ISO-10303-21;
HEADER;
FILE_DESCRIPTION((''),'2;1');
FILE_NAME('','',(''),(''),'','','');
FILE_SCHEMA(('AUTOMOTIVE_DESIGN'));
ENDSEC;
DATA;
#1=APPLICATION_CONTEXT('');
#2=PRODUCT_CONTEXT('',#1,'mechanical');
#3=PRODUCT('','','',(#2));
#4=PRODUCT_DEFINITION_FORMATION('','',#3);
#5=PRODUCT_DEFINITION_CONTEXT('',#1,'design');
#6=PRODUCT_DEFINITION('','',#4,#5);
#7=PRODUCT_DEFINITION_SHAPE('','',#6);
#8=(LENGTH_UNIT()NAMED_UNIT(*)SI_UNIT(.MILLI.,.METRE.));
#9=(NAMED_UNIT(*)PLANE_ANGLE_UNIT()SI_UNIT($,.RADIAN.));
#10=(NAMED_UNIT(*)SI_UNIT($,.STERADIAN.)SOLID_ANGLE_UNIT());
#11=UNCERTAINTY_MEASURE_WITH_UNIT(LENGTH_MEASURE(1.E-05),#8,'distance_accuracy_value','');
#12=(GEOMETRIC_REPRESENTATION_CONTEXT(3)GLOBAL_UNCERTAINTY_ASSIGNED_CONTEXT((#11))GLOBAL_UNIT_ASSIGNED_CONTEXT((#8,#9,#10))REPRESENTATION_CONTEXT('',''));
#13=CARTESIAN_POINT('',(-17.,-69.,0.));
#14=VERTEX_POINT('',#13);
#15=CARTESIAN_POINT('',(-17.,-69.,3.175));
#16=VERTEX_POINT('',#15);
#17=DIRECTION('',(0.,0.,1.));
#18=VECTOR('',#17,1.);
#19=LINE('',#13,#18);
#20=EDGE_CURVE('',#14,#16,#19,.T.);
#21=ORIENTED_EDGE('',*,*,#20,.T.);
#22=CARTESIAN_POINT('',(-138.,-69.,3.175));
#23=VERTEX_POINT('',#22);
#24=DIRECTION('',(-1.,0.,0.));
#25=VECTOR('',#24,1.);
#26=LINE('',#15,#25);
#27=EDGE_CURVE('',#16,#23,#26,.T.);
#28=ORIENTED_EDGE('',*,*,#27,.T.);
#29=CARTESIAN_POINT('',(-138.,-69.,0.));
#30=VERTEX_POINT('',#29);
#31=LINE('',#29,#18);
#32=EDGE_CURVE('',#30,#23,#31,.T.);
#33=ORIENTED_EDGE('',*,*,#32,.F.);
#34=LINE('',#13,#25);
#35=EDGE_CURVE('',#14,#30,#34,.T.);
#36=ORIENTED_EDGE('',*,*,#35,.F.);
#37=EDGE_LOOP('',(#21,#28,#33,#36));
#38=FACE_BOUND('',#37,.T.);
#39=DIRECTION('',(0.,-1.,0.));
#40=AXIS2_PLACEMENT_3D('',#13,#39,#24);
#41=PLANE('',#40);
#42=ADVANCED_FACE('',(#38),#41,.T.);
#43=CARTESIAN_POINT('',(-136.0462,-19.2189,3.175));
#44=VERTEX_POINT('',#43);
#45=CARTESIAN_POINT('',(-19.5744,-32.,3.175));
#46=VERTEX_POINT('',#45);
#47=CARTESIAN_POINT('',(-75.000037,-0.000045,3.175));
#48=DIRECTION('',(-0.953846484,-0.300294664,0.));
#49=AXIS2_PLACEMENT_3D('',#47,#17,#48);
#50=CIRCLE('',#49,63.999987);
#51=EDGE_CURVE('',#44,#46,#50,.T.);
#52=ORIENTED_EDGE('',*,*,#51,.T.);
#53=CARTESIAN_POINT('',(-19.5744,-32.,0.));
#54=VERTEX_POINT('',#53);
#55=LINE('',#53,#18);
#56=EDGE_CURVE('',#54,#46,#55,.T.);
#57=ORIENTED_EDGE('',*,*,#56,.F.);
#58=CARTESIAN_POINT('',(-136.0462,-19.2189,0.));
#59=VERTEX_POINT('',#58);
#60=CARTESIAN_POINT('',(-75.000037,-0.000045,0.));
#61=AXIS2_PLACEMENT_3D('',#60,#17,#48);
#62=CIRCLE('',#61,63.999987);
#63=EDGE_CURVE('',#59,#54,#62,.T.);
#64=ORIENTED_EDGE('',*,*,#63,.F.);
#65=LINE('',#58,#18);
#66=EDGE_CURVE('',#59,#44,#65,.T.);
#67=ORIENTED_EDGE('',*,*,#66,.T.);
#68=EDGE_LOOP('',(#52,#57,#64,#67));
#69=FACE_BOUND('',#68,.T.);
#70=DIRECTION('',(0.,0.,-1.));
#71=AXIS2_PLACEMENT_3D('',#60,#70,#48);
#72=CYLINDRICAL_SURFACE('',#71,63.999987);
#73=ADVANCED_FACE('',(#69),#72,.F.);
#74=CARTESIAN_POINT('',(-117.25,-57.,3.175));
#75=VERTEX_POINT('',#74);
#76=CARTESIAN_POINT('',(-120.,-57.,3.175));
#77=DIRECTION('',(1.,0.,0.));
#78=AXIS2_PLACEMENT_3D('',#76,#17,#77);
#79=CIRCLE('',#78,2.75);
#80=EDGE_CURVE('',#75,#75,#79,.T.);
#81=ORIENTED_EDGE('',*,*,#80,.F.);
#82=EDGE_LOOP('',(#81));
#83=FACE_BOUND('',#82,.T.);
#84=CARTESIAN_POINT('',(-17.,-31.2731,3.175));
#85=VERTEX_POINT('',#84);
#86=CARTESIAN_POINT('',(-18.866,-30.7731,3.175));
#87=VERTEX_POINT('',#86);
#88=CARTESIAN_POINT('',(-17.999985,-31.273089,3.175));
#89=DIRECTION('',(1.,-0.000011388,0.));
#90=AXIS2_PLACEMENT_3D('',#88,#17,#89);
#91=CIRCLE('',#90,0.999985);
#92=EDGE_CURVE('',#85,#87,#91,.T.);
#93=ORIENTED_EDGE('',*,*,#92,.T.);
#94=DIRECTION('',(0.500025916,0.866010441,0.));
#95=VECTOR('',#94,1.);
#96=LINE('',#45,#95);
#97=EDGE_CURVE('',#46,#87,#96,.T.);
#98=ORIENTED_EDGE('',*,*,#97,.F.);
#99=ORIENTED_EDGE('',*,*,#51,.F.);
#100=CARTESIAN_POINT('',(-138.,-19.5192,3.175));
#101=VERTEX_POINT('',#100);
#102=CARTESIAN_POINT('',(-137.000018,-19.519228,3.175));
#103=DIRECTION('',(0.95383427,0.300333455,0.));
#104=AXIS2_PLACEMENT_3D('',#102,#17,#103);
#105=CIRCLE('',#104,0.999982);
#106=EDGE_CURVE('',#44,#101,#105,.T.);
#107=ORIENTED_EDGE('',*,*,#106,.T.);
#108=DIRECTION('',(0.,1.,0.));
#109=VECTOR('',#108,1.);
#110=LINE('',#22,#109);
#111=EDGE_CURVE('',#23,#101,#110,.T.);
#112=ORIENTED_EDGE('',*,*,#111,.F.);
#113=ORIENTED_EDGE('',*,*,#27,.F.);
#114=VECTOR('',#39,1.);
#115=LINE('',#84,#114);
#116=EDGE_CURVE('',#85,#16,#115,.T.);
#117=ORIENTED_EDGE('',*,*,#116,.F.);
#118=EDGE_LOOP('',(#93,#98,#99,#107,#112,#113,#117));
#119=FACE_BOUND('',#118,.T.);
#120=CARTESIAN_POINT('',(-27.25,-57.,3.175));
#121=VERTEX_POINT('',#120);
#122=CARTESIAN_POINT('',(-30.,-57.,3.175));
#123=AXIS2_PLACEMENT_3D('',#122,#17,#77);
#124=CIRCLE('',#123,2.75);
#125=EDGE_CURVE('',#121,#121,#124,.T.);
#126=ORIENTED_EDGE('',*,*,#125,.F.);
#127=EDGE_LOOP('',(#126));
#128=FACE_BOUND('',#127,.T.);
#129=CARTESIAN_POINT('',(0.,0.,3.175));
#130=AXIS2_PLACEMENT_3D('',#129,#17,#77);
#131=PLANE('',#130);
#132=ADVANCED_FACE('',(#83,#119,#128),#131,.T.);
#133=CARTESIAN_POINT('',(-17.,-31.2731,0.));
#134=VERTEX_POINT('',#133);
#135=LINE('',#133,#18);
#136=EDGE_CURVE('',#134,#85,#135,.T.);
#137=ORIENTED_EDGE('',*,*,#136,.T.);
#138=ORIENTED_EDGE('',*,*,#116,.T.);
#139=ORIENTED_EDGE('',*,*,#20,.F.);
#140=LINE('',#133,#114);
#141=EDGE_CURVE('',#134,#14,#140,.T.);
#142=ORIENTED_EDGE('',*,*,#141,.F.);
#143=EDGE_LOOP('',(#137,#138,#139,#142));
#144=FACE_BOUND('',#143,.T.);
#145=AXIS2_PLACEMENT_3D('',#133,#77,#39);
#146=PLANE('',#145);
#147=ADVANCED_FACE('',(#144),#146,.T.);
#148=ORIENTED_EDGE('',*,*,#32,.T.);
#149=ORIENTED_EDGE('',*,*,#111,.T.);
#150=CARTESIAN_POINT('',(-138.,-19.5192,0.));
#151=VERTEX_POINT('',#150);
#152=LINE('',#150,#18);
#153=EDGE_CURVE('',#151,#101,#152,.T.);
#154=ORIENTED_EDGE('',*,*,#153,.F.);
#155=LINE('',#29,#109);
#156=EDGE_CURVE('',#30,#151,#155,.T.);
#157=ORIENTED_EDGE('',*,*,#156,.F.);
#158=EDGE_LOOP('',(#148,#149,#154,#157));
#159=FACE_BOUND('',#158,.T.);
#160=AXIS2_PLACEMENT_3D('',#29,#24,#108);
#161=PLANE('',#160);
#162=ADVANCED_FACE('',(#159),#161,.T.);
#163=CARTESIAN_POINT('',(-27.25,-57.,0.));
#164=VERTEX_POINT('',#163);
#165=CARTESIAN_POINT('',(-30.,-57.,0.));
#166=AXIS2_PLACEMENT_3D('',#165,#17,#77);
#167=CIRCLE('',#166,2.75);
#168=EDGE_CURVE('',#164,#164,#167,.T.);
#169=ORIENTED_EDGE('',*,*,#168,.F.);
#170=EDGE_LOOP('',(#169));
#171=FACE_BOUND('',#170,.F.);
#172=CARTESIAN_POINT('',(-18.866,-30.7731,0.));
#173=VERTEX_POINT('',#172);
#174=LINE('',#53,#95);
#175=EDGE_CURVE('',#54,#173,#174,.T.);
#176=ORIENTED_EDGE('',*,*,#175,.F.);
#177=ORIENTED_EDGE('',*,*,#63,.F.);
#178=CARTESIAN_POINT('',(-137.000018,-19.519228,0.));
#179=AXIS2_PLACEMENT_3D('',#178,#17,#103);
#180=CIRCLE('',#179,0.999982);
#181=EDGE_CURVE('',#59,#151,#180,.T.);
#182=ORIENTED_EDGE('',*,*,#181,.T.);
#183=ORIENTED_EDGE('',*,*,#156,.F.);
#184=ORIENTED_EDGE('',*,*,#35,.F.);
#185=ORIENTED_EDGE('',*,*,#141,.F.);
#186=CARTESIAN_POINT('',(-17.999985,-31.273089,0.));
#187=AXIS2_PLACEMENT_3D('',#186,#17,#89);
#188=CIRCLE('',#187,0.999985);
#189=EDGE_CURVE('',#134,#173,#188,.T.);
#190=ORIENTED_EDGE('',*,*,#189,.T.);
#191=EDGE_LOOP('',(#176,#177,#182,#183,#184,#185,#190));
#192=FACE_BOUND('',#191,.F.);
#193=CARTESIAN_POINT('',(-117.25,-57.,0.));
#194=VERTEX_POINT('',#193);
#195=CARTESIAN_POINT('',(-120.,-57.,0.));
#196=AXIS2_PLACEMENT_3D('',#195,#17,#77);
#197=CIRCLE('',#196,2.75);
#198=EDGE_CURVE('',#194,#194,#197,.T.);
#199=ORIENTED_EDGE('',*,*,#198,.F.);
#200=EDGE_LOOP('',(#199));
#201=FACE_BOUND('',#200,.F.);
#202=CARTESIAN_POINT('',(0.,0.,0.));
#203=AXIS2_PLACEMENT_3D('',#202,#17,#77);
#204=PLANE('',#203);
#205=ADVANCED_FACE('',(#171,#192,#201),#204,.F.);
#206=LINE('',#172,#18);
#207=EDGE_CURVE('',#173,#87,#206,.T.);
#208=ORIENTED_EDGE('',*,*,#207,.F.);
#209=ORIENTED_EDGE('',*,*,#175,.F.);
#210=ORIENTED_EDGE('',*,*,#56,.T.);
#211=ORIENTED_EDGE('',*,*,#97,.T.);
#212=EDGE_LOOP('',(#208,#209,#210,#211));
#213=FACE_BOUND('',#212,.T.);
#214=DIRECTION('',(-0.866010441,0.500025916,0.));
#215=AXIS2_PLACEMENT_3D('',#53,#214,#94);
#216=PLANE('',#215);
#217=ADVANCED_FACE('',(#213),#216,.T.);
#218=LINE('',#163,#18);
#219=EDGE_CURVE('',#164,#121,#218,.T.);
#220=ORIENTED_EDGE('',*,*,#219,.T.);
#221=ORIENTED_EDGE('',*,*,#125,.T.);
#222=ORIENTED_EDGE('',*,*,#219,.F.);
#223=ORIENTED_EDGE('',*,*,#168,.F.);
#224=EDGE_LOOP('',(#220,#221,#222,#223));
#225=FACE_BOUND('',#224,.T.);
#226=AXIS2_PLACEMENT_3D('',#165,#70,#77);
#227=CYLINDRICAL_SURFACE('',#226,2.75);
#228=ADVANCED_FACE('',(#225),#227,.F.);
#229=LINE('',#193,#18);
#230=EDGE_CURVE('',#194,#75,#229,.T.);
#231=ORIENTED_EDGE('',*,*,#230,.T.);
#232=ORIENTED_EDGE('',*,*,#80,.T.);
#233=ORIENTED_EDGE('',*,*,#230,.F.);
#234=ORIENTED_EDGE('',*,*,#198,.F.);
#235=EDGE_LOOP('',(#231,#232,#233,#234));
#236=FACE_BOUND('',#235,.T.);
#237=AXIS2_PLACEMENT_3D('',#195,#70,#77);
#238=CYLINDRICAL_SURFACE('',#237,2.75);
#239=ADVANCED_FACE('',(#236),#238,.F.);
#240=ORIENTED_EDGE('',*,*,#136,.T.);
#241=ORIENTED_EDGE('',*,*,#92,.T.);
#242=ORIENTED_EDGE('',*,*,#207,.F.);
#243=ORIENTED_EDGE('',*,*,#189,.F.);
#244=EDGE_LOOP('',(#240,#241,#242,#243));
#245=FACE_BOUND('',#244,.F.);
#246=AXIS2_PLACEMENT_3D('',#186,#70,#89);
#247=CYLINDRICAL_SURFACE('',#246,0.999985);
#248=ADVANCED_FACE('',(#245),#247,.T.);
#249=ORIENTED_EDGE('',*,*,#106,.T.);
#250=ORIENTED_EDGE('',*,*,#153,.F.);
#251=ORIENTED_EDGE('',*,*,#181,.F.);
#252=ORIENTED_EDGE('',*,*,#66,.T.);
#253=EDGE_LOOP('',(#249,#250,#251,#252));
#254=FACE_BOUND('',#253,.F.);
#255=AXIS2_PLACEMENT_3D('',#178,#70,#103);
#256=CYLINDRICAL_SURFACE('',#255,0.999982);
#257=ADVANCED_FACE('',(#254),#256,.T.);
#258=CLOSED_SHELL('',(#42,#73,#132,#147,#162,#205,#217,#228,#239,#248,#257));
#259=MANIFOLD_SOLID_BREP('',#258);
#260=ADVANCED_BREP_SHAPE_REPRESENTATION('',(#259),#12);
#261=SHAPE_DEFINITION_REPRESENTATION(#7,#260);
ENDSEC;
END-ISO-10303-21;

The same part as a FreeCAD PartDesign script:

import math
import FreeCAD as App
import Part
import Sketcher

V = App.Vector

doc = App.newDocument("Part")
body = doc.addObject("PartDesign::Body", "Body")

# Sketch on XY plane
sketch1 = body.newObject("Sketcher::SketchObject", "Sketch")
sketch1.AttachmentSupport = (doc.getObject("XY_Plane"), [""])
sketch1.MapMode = "FlatFace"
sketch1.addGeometry([
    Part.LineSegment(V(-17, -69, 0), V(-17, -31.3, 0)),  # 0
    Part.ArcOfCircle(Part.Circle(V(-18, -31.3, 0), V(0, 0, 1), 1), math.radians(0), math.radians(150)),  # 1
    Part.LineSegment(V(-18.9, -30.8, 0), V(-19.6, -32, 0)),  # 2
    Part.ArcOfCircle(Part.Circle(V(-75, 0, 0), V(0, 0, 1), 64), math.radians(-163), math.radians(-30)),  # 3
    Part.ArcOfCircle(Part.Circle(V(-137, -19.5, 0), V(0, 0, 1), 1), math.radians(17), math.radians(180)),  # 4
    Part.LineSegment(V(-138, -19.5, 0), V(-138, -69, 0)),  # 5
    Part.LineSegment(V(-138, -69, 0), V(-17, -69, 0)),  # 6
    Part.Circle(V(-120, -57, 0), V(0, 0, 1), 2.8),  # 7
    Part.Circle(V(-30, -57, 0), V(0, 0, 1), 2.8),  # 8
], False)
sketch1.addConstraint([
    Sketcher.Constraint("Tangent", 0, 2, 1, 1),
    Sketcher.Constraint("Tangent", 1, 2, 2, 1),
    Sketcher.Constraint("Tangent", 2, 2, 3, 2),
    Sketcher.Constraint("Tangent", 3, 1, 4, 1),
    Sketcher.Constraint("Tangent", 4, 2, 5, 1),
    Sketcher.Constraint("Coincident", 5, 2, 6, 1),
    Sketcher.Constraint("Coincident", 6, 2, 0, 1),
    Sketcher.Constraint("Vertical", 0),
    Sketcher.Constraint("Vertical", 5),
    Sketcher.Constraint("Horizontal", 6),
    Sketcher.Constraint("Equal", 1, 4),
    Sketcher.Constraint("Equal", 7, 8),
    Sketcher.Constraint("PointOnObject", 3, 3, -1),
    Sketcher.Constraint("Horizontal", 7, 3, 8, 3),
    Sketcher.Constraint("Radius", 1, 1.0),
    Sketcher.Constraint("Radius", 3, 64.0),
    Sketcher.Constraint("Diameter", 7, 5.5),
    Sketcher.Constraint("DistanceX", 6, 1, 6, 2, 121.0),
    Sketcher.Constraint("DistanceX", 1, 3, -1, 1, 18.0),
    Sketcher.Constraint("DistanceX", 3, 3, -1, 1, 75.0),
    Sketcher.Constraint("DistanceX", 7, 3, -1, 1, 120.0),
    Sketcher.Constraint("DistanceY", 7, 3, -1, 1, 57.0),
    Sketcher.Constraint("DistanceX", 8, 3, -1, 1, 30.0),
    Sketcher.Constraint("DistanceY", 2, 2, -1, 1, 32.0),
    Sketcher.Constraint("DistanceY", 5, 2, -1, 1, 69.0),
])
pad1 = body.newObject("PartDesign::Pad", "Pad")
pad1.Profile = sketch1
pad1.Length = 3.175

doc.recompute()
